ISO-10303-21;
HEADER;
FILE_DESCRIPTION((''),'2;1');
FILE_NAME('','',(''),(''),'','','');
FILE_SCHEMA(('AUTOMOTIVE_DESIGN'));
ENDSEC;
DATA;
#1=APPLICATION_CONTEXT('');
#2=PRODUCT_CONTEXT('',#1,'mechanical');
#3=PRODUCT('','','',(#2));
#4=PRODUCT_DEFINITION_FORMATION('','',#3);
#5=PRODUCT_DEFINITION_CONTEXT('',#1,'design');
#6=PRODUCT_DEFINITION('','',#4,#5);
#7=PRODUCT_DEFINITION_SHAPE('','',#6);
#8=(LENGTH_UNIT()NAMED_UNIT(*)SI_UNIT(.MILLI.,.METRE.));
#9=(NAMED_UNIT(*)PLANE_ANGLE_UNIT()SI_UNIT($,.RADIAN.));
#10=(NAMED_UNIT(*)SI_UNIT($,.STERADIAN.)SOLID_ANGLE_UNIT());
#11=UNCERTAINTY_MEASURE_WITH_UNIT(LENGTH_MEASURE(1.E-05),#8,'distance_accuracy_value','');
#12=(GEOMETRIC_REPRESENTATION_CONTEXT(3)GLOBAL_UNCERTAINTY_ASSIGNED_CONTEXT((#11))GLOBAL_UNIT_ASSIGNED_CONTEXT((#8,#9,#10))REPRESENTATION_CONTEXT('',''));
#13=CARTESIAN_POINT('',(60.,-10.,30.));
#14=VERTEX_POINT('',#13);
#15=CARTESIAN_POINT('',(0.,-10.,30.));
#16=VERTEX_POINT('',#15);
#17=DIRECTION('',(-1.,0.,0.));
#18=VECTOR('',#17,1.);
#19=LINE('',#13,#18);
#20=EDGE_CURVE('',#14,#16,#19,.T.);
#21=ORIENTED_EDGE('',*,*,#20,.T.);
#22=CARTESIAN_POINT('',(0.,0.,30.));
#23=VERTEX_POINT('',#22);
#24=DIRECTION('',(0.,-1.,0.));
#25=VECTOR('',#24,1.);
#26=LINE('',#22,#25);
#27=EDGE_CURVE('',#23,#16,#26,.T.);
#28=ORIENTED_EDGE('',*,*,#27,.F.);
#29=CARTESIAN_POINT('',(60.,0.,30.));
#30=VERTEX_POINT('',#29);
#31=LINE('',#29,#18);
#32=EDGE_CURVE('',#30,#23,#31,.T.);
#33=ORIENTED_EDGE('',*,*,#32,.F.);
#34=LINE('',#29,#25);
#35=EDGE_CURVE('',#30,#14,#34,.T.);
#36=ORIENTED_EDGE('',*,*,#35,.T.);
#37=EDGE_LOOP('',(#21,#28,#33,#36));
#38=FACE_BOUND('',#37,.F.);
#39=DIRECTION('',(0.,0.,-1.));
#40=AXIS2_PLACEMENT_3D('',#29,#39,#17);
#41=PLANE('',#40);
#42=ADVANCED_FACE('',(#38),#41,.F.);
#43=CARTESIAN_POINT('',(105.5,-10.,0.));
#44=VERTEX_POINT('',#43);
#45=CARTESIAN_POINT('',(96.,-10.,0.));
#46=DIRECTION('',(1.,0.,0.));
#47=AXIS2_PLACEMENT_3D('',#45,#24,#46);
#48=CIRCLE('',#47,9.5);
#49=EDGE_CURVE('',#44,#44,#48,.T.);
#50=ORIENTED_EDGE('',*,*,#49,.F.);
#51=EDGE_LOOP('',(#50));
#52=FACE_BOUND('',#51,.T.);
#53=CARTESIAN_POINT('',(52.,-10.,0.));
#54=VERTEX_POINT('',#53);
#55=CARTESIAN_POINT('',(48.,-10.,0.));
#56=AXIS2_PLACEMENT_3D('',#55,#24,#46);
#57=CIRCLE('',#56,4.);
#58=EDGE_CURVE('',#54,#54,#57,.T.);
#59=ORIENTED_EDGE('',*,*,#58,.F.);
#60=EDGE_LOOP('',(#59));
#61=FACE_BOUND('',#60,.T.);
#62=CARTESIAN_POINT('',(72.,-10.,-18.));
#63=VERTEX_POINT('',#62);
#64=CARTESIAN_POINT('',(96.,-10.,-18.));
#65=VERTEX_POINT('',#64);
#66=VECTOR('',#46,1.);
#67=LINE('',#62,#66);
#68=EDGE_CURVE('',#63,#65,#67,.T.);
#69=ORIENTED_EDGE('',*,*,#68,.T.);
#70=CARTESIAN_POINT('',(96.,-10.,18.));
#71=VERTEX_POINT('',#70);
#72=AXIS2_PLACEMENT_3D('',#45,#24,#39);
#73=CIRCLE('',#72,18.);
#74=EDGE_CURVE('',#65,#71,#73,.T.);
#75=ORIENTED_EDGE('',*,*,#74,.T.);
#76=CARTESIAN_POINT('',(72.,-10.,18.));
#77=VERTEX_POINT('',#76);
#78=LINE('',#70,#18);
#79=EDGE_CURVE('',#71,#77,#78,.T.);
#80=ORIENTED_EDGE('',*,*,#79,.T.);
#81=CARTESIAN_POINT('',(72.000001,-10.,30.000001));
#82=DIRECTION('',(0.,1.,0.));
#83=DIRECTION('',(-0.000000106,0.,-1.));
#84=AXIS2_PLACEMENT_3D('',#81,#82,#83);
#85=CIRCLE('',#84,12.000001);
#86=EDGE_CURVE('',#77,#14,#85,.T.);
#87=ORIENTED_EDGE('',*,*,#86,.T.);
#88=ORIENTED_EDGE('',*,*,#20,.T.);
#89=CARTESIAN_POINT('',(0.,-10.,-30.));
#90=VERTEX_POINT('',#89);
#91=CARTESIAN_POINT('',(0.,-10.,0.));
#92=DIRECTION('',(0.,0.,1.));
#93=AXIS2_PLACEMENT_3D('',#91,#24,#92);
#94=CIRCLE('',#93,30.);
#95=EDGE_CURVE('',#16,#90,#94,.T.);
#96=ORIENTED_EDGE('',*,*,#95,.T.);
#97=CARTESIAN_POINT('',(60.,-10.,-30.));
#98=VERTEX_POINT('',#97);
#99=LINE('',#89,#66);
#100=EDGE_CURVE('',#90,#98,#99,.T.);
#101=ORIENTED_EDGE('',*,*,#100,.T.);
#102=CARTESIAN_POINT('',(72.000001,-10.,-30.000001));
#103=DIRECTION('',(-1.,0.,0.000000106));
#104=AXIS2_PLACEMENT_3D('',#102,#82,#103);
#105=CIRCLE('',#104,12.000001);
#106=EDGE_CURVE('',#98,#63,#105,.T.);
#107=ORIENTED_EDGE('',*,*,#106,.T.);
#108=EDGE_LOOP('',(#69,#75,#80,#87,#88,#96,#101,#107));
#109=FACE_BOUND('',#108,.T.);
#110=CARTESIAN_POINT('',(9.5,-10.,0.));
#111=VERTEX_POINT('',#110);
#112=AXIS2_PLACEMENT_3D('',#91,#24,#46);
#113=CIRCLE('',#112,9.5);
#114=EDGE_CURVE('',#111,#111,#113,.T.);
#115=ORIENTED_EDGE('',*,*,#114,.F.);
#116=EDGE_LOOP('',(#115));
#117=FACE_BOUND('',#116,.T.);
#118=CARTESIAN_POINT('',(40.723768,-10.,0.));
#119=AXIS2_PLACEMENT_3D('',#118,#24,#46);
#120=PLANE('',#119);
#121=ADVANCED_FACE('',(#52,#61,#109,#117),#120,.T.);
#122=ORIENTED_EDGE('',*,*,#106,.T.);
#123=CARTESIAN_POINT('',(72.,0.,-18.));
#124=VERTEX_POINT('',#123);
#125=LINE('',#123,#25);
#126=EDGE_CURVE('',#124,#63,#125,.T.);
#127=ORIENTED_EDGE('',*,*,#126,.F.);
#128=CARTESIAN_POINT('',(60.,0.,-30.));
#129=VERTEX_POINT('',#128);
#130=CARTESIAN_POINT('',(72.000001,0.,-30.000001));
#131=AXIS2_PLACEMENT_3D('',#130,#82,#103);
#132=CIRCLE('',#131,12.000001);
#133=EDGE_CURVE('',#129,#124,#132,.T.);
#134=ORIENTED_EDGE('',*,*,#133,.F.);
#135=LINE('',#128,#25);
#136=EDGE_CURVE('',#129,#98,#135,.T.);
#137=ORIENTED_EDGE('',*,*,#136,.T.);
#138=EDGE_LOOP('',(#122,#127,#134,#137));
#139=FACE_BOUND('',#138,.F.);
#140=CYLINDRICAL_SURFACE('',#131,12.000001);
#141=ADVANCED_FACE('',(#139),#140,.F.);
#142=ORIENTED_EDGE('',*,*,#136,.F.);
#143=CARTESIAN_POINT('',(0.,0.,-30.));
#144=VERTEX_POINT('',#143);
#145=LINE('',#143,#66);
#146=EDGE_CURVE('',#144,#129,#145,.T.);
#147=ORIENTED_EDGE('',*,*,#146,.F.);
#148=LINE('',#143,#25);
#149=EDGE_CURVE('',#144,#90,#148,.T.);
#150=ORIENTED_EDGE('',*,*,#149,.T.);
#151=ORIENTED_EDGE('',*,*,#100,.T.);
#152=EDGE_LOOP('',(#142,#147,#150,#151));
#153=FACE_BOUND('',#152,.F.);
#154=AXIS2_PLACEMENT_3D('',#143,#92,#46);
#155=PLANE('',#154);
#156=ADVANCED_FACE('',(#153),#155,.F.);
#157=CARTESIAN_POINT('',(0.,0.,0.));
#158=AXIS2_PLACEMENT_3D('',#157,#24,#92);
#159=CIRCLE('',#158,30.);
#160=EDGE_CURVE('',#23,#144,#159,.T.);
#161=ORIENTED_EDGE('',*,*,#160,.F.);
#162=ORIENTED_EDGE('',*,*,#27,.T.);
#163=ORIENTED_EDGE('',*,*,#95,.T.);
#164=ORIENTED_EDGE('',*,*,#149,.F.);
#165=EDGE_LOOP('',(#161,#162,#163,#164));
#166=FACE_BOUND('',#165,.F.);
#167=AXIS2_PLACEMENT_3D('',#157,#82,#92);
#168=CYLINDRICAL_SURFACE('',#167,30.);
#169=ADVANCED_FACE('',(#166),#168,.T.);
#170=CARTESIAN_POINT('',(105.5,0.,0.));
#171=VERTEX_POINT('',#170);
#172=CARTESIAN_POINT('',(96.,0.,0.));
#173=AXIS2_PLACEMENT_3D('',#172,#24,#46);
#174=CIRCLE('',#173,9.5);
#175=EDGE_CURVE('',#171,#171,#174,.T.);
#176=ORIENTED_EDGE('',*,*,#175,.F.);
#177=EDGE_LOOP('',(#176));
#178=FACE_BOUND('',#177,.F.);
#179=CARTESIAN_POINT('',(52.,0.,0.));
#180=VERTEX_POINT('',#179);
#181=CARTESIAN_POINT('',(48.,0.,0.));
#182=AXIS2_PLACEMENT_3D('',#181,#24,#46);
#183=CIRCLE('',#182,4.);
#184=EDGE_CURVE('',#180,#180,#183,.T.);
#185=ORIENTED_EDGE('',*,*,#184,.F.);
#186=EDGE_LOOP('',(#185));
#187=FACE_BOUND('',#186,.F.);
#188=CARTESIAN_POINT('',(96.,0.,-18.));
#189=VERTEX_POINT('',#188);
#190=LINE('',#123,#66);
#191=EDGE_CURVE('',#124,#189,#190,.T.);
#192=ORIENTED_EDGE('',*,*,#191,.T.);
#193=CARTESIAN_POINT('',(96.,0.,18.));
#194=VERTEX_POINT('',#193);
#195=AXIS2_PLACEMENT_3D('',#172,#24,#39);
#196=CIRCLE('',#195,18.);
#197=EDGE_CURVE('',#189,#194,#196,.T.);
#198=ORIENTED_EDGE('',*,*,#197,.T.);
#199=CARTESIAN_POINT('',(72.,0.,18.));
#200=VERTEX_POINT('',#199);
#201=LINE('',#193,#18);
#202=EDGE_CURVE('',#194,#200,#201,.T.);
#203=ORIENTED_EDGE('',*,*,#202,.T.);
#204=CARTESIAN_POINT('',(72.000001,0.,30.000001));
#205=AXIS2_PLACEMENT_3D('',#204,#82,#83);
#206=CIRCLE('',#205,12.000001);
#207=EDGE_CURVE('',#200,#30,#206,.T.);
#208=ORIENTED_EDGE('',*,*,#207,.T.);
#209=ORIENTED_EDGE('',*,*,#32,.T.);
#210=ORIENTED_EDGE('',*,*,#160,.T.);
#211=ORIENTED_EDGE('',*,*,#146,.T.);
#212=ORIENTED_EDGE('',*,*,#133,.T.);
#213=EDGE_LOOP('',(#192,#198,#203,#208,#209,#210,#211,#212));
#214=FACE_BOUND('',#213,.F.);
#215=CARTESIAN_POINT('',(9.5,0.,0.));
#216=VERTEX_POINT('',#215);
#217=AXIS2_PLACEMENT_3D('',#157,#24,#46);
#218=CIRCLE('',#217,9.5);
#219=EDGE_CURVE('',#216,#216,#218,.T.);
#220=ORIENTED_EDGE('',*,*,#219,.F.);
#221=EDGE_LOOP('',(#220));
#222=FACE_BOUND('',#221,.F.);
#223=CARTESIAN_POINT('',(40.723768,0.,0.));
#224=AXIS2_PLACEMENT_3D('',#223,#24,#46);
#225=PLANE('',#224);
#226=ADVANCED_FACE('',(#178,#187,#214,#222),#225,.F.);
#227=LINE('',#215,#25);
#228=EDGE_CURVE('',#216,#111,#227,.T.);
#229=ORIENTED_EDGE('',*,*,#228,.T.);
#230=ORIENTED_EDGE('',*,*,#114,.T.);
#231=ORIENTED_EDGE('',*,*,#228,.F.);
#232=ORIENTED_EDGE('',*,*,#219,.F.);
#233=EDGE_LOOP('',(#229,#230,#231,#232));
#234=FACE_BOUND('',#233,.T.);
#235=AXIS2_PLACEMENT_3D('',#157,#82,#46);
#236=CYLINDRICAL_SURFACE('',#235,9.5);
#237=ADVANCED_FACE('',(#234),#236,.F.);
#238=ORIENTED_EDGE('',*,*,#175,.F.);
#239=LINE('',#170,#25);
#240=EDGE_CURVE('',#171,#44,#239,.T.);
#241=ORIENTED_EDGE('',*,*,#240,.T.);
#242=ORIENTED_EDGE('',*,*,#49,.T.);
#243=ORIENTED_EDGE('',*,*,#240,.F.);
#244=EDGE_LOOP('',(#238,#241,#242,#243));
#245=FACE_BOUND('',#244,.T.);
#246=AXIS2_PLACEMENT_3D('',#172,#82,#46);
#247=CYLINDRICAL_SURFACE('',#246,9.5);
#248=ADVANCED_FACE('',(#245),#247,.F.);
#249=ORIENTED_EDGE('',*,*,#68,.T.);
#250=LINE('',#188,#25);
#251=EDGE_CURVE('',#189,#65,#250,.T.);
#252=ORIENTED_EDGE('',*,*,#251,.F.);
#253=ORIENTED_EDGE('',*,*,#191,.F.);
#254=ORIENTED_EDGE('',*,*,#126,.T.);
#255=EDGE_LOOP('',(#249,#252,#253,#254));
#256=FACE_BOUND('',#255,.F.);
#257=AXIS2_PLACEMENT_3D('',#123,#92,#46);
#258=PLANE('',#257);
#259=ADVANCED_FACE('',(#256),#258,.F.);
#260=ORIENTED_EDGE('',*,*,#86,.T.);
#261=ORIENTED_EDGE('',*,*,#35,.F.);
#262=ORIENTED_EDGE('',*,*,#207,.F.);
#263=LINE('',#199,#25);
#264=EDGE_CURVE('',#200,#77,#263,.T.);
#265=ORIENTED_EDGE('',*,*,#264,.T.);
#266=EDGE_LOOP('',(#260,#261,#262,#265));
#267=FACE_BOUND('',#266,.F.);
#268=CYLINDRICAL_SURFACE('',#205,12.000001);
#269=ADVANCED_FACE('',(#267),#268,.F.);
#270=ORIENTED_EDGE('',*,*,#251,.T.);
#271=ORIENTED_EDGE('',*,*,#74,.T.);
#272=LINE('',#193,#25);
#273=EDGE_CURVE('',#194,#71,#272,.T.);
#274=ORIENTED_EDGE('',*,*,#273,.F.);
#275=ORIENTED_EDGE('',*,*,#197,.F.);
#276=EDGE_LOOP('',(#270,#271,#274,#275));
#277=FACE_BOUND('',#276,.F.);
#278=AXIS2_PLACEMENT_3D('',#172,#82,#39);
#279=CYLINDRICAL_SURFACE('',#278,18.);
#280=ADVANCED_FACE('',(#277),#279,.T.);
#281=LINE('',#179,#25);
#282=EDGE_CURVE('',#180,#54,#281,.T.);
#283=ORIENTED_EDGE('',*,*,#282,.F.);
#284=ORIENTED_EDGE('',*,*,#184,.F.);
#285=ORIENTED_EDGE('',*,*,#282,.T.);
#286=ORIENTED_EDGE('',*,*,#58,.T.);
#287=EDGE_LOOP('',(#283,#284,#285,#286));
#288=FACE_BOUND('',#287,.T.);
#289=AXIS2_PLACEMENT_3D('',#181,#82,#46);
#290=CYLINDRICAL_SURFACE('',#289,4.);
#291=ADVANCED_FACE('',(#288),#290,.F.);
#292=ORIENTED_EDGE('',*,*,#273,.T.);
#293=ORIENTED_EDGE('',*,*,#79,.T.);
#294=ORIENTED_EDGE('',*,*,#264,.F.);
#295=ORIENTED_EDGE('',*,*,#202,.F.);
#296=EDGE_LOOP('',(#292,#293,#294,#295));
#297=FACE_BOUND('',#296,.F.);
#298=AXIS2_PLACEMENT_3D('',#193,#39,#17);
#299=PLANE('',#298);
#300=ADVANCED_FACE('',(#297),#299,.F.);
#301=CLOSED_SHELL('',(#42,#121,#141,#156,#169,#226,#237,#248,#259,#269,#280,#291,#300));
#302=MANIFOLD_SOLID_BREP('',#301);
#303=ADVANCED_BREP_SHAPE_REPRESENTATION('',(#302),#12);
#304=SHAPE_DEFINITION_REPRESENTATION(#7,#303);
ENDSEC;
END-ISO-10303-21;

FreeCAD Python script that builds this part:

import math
import FreeCAD as App
import Part
import Sketcher
Q = App.Units.Quantity

doc = App.newDocument("Part")
body = doc.addObject("PartDesign::Body", "Body")

sketch1 = doc.addObject("Sketcher::SketchObject", "Sketch")
body.addObject(sketch1)
sketch1.AttachmentSupport = (doc.XZ_Plane, [""])
sketch1.MapMode = "FlatFace"
sketch1.addGeometry(Part.LineSegment(App.Vector(60, 30, 0), App.Vector(0, 30, 0)), False)
sketch1.addGeometry(Part.ArcOfCircle(Part.Circle(App.Vector(0, 0, 0), App.Vector(0, 0, 1), 30), math.radians(90), math.radians(270)), False)
sketch1.addGeometry(Part.LineSegment(App.Vector(0, -30, 0), App.Vector(60, -30, 0)), False)
sketch1.addGeometry(Part.ArcOfCircle(Part.Circle(App.Vector(72.000001, -30.000001, 0), App.Vector(0, 0, 1), 12.000001), math.radians(90.000006), math.radians(179.999994)), False)
sketch1.addGeometry(Part.LineSegment(App.Vector(72, -18, 0), App.Vector(96, -18, 0)), False)
sketch1.addGeometry(Part.ArcOfCircle(Part.Circle(App.Vector(96, 0, 0), App.Vector(0, 0, 1), 18), math.radians(-90), math.radians(90)), False)
sketch1.addGeometry(Part.LineSegment(App.Vector(96, 18, 0), App.Vector(72, 18, 0)), False)
sketch1.addGeometry(Part.ArcOfCircle(Part.Circle(App.Vector(72.000001, 30.000001, 0), App.Vector(0, 0, 1), 12.000001), math.radians(-179.999994), math.radians(-90.000006)), False)
sketch1.addGeometry(Part.Circle(App.Vector(0, 0, 0), App.Vector(0, 0, 1), 9.5), False)
sketch1.addGeometry(Part.Circle(App.Vector(48, 0, 0), App.Vector(0, 0, 1), 4), False)
sketch1.addGeometry(Part.Circle(App.Vector(96, 0, 0), App.Vector(0, 0, 1), 9.5), False)
sketch1.addConstraint(Sketcher.Constraint("Tangent", 0, 2, 1, 1))
sketch1.addConstraint(Sketcher.Constraint("Tangent", 1, 2, 2, 1))
sketch1.addConstraint(Sketcher.Constraint("Coincident", 2, 2, 3, 2))
sketch1.addConstraint(Sketcher.Constraint("Tangent", 3, 1, 4, 1))
sketch1.addConstraint(Sketcher.Constraint("Tangent", 4, 2, 5, 1))
sketch1.addConstraint(Sketcher.Constraint("Tangent", 5, 2, 6, 1))
sketch1.addConstraint(Sketcher.Constraint("Tangent", 6, 2, 7, 2))
sketch1.addConstraint(Sketcher.Constraint("Coincident", 7, 1, 0, 1))
sketch1.addConstraint(Sketcher.Constraint("Horizontal", 0))
sketch1.addConstraint(Sketcher.Constraint("Horizontal", 2))
sketch1.addConstraint(Sketcher.Constraint("Horizontal", 4))
sketch1.addConstraint(Sketcher.Constraint("Horizontal", 6))
sketch1.addConstraint(Sketcher.Constraint("Coincident", 1, 3, -1, 1))
sketch1.addConstraint(Sketcher.Constraint("Coincident", 8, 3, -1, 1))
sketch1.addConstraint(Sketcher.Constraint("Coincident", 10, 3, 5, 3))
sketch1.addConstraint(Sketcher.Constraint("Equal", 3, 7))
sketch1.addConstraint(Sketcher.Constraint("Equal", 8, 10))
sketch1.addConstraint(Sketcher.Constraint("Symmetric", 3, 3, 7, 3, -1))
sketch1.addConstraint(Sketcher.Constraint("PointOnObject", 9, 3, -1))
sketch1.addConstraint(Sketcher.Constraint("Horizontal", 7, 3, 0, 2))
sketch1.addConstraint(Sketcher.Constraint("Diameter", 8, Q("19 mm")))
sketch1.addConstraint(Sketcher.Constraint("Diameter", 9, Q("8 mm")))
sketch1.addConstraint(Sketcher.Constraint("Radius", 1, Q("30 mm")))
sketch1.addConstraint(Sketcher.Constraint("Radius", 3, Q("12.000001 mm")))
sketch1.addConstraint(Sketcher.Constraint("DistanceX", 0, 2, 0, 1, Q("60 mm")))
sketch1.addConstraint(Sketcher.Constraint("DistanceX", 4, 1, 4, 2, Q("24 mm")))
sketch1.addConstraint(Sketcher.Constraint("DistanceX", -1, 1, 9, 3, Q("48 mm")))
pad1 = doc.addObject("PartDesign::Pad", "Pad")
body.addObject(pad1)
pad1.Profile = sketch1
pad1.Length = 10

doc.recompute()
